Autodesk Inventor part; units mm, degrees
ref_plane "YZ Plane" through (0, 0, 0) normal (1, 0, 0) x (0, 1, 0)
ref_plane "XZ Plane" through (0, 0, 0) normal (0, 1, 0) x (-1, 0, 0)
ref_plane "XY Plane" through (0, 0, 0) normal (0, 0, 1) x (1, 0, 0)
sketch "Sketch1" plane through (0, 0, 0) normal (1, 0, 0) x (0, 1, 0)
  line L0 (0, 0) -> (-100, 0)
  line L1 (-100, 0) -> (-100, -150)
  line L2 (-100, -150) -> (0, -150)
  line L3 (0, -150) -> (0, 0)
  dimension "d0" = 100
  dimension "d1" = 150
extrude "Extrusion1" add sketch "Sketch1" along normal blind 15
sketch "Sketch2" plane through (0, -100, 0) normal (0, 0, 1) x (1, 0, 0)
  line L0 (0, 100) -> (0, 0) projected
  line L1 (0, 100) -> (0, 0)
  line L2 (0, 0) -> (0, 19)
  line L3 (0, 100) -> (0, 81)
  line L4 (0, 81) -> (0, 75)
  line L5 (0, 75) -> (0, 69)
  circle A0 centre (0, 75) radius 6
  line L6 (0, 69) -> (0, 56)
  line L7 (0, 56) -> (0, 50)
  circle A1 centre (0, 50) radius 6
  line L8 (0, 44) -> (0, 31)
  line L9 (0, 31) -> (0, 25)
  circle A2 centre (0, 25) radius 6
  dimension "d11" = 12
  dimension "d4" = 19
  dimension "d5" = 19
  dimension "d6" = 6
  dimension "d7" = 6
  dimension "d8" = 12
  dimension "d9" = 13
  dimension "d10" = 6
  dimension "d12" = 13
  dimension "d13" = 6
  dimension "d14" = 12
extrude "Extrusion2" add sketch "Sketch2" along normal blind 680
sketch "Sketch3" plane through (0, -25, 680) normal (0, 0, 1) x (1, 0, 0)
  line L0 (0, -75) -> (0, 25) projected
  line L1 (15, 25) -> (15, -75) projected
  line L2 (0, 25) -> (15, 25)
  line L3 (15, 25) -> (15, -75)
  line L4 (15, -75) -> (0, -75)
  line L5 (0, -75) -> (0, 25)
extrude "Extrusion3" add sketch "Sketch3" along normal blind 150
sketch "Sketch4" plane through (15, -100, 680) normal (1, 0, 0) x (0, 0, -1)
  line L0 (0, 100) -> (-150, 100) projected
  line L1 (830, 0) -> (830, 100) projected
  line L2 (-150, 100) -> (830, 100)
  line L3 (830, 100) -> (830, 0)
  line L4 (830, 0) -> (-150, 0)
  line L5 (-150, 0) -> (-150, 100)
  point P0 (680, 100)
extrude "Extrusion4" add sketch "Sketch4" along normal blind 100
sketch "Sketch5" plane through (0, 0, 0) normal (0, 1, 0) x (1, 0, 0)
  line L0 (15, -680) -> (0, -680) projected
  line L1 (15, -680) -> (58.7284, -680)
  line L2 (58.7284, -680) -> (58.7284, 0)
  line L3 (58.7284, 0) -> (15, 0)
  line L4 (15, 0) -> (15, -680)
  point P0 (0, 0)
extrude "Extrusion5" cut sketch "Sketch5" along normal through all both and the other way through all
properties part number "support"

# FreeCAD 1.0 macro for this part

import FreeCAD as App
import Part
import Sketcher


def add_polygon(sketch, points):
    """Adds a closed chain of lines whose ends are joined by coincident constraints."""
    first, n = sketch.GeometryCount, len(points)
    for a, b in zip(points, points[1:] + points[:1]):
        sketch.addGeometry(Part.LineSegment(App.Vector(*a, 0), App.Vector(*b, 0)), False)
    for i in range(n):
        sketch.addConstraint(Sketcher.Constraint("Coincident", first + i, 2, first + (i + 1) % n, 1))

doc = App.newDocument("Part")
body = doc.addObject("PartDesign::Body", "Body")

# Sketch on YZ plane
sketch1 = body.newObject("Sketcher::SketchObject", "Sketch")
sketch1.AttachmentSupport = (doc.getObject("YZ_Plane"), [""])
sketch1.MapMode = "FlatFace"
add_polygon(sketch1, [(0, -150), (0, 0), (-100, 0), (-100, -150)])  # lines 0-3
sketch1.addConstraint(Sketcher.Constraint("Vertical", 0))
sketch1.addConstraint(Sketcher.Constraint("Horizontal", 1))
sketch1.addConstraint(Sketcher.Constraint("Vertical", 2))
sketch1.addConstraint(Sketcher.Constraint("Horizontal", 3))
sketch1.addConstraint(Sketcher.Constraint("Coincident", 0, 2, -1, 1))
sketch1.addConstraint(Sketcher.Constraint("DistanceX", 1, 2, 1, 1, 100.0))
sketch1.addConstraint(Sketcher.Constraint("DistanceY", 0, 1, 0, 2, 150.0))
pad1 = body.newObject("PartDesign::Pad", "Pad")
pad1.Profile = sketch1
pad1.Length = 15

# Sketch on XY plane
sketch2 = body.newObject("Sketcher::SketchObject", "Sketch001")
sketch2.AttachmentSupport = (doc.getObject("XY_Plane"), [""])
sketch2.MapMode = "FlatFace"
sketch2.addGeometry(Part.Circle(App.Vector(0, -25, 0), App.Vector(0, 0, 1), 6), False)
sketch2.addGeometry(Part.Circle(App.Vector(0, -75, 0), App.Vector(0, 0, 1), 6), False)
sketch2.addGeometry(Part.Circle(App.Vector(0, -50, 0), App.Vector(0, 0, 1), 6), False)
sketch2.addConstraint(Sketcher.Constraint("Equal", 0, 1))
sketch2.addConstraint(Sketcher.Constraint("Equal", 1, 2))
sketch2.addConstraint(Sketcher.Constraint("PointOnObject", 0, 3, -2))
sketch2.addConstraint(Sketcher.Constraint("PointOnObject", 1, 3, -2))
sketch2.addConstraint(Sketcher.Constraint("PointOnObject", 2, 3, -2))
sketch2.addConstraint(Sketcher.Constraint("Diameter", 0, 12.0))
sketch2.addConstraint(Sketcher.Constraint("DistanceY", 0, 3, -1, 1, 25.0))
sketch2.addConstraint(Sketcher.Constraint("DistanceY", 1, 3, -1, 1, 75.0))
sketch2.addConstraint(Sketcher.Constraint("DistanceY", 2, 3, -1, 1, 50.0))
pad2 = body.newObject("PartDesign::Pad", "Pad001")
pad2.Profile = sketch2
pad2.Length = 680

# Sketch on XY plane
sketch3 = body.newObject("Sketcher::SketchObject", "Sketch002")
sketch3.AttachmentSupport = (doc.getObject("XY_Plane"), [""])
sketch3.MapMode = "FlatFace"
sketch3.AttachmentOffset = App.Placement(App.Vector(0, 0, 680), App.Rotation())
add_polygon(sketch3, [(0, 0), (0, -100), (15, -100), (15, 0)])  # lines 0-3
sketch3.addConstraint(Sketcher.Constraint("Vertical", 0))
sketch3.addConstraint(Sketcher.Constraint("Horizontal", 1))
sketch3.addConstraint(Sketcher.Constraint("Vertical", 2))
sketch3.addConstraint(Sketcher.Constraint("Horizontal", 3))
sketch3.addConstraint(Sketcher.Constraint("Coincident", 3, 2, -1, 1))
sketch3.addConstraint(Sketcher.Constraint("DistanceX", 1, 1, 1, 2, 15.0))
sketch3.addConstraint(Sketcher.Constraint("DistanceY", 0, 2, 0, 1, 100.0))
pad3 = body.newObject("PartDesign::Pad", "Pad002")
pad3.Profile = sketch3
pad3.Length = 150

# Sketch on YZ plane
sketch4 = body.newObject("Sketcher::SketchObject", "Sketch003")
sketch4.AttachmentSupport = (doc.getObject("YZ_Plane"), [""])
sketch4.MapMode = "FlatFace"
sketch4.AttachmentOffset = App.Placement(App.Vector(0, 0, 15), App.Rotation())
add_polygon(sketch4, [(0, -150), (0, 830), (-100, 830), (-100, -150)])  # lines 0-3
sketch4.addConstraint(Sketcher.Constraint("Vertical", 0))
sketch4.addConstraint(Sketcher.Constraint("Horizontal", 1))
sketch4.addConstraint(Sketcher.Constraint("Vertical", 2))
sketch4.addConstraint(Sketcher.Constraint("Horizontal", 3))
sketch4.addConstraint(Sketcher.Constraint("PointOnObject", 0, 2, -2))
sketch4.addConstraint(Sketcher.Constraint("DistanceX", 1, 2, 1, 1, 100.0))
sketch4.addConstraint(Sketcher.Constraint("DistanceY", 0, 1, 0, 2, 980.0))
sketch4.addConstraint(Sketcher.Constraint("DistanceY", -1, 1, 0, 2, 830.0))
pad4 = body.newObject("PartDesign::Pad", "Pad003")
pad4.Profile = sketch4
pad4.Length = 100

# Sketch on XZ plane
sketch5 = body.newObject("Sketcher::SketchObject", "Sketch004")
sketch5.AttachmentSupport = (doc.getObject("XZ_Plane"), [""])
sketch5.MapMode = "FlatFace"
add_polygon(sketch5, [(15, 0), (15, 680), (58.7284, 680), (58.7284, 0)])  # lines 0-3
sketch5.addConstraint(Sketcher.Constraint("Vertical", 0))
sketch5.addConstraint(Sketcher.Constraint("Horizontal", 1))
sketch5.addConstraint(Sketcher.Constraint("Vertical", 2))
sketch5.addConstraint(Sketcher.Constraint("Horizontal", 3))
sketch5.addConstraint(Sketcher.Constraint("PointOnObject", 2, 2, -1))
sketch5.addConstraint(Sketcher.Constraint("DistanceY", 0, 1, 0, 2, 680.0))
sketch5.addConstraint(Sketcher.Constraint("DistanceX", -1, 1, 0, 2, 15.0))
sketch5.addConstraint(Sketcher.Constraint("DistanceX", 1, 1, 1, 2, 43.7284))
pocket1 = body.newObject("PartDesign::Pocket", "Pocket")
pocket1.Profile = sketch5
pocket1.Type = "ThroughAll"
pocket1.Midplane = True

doc.recompute()
